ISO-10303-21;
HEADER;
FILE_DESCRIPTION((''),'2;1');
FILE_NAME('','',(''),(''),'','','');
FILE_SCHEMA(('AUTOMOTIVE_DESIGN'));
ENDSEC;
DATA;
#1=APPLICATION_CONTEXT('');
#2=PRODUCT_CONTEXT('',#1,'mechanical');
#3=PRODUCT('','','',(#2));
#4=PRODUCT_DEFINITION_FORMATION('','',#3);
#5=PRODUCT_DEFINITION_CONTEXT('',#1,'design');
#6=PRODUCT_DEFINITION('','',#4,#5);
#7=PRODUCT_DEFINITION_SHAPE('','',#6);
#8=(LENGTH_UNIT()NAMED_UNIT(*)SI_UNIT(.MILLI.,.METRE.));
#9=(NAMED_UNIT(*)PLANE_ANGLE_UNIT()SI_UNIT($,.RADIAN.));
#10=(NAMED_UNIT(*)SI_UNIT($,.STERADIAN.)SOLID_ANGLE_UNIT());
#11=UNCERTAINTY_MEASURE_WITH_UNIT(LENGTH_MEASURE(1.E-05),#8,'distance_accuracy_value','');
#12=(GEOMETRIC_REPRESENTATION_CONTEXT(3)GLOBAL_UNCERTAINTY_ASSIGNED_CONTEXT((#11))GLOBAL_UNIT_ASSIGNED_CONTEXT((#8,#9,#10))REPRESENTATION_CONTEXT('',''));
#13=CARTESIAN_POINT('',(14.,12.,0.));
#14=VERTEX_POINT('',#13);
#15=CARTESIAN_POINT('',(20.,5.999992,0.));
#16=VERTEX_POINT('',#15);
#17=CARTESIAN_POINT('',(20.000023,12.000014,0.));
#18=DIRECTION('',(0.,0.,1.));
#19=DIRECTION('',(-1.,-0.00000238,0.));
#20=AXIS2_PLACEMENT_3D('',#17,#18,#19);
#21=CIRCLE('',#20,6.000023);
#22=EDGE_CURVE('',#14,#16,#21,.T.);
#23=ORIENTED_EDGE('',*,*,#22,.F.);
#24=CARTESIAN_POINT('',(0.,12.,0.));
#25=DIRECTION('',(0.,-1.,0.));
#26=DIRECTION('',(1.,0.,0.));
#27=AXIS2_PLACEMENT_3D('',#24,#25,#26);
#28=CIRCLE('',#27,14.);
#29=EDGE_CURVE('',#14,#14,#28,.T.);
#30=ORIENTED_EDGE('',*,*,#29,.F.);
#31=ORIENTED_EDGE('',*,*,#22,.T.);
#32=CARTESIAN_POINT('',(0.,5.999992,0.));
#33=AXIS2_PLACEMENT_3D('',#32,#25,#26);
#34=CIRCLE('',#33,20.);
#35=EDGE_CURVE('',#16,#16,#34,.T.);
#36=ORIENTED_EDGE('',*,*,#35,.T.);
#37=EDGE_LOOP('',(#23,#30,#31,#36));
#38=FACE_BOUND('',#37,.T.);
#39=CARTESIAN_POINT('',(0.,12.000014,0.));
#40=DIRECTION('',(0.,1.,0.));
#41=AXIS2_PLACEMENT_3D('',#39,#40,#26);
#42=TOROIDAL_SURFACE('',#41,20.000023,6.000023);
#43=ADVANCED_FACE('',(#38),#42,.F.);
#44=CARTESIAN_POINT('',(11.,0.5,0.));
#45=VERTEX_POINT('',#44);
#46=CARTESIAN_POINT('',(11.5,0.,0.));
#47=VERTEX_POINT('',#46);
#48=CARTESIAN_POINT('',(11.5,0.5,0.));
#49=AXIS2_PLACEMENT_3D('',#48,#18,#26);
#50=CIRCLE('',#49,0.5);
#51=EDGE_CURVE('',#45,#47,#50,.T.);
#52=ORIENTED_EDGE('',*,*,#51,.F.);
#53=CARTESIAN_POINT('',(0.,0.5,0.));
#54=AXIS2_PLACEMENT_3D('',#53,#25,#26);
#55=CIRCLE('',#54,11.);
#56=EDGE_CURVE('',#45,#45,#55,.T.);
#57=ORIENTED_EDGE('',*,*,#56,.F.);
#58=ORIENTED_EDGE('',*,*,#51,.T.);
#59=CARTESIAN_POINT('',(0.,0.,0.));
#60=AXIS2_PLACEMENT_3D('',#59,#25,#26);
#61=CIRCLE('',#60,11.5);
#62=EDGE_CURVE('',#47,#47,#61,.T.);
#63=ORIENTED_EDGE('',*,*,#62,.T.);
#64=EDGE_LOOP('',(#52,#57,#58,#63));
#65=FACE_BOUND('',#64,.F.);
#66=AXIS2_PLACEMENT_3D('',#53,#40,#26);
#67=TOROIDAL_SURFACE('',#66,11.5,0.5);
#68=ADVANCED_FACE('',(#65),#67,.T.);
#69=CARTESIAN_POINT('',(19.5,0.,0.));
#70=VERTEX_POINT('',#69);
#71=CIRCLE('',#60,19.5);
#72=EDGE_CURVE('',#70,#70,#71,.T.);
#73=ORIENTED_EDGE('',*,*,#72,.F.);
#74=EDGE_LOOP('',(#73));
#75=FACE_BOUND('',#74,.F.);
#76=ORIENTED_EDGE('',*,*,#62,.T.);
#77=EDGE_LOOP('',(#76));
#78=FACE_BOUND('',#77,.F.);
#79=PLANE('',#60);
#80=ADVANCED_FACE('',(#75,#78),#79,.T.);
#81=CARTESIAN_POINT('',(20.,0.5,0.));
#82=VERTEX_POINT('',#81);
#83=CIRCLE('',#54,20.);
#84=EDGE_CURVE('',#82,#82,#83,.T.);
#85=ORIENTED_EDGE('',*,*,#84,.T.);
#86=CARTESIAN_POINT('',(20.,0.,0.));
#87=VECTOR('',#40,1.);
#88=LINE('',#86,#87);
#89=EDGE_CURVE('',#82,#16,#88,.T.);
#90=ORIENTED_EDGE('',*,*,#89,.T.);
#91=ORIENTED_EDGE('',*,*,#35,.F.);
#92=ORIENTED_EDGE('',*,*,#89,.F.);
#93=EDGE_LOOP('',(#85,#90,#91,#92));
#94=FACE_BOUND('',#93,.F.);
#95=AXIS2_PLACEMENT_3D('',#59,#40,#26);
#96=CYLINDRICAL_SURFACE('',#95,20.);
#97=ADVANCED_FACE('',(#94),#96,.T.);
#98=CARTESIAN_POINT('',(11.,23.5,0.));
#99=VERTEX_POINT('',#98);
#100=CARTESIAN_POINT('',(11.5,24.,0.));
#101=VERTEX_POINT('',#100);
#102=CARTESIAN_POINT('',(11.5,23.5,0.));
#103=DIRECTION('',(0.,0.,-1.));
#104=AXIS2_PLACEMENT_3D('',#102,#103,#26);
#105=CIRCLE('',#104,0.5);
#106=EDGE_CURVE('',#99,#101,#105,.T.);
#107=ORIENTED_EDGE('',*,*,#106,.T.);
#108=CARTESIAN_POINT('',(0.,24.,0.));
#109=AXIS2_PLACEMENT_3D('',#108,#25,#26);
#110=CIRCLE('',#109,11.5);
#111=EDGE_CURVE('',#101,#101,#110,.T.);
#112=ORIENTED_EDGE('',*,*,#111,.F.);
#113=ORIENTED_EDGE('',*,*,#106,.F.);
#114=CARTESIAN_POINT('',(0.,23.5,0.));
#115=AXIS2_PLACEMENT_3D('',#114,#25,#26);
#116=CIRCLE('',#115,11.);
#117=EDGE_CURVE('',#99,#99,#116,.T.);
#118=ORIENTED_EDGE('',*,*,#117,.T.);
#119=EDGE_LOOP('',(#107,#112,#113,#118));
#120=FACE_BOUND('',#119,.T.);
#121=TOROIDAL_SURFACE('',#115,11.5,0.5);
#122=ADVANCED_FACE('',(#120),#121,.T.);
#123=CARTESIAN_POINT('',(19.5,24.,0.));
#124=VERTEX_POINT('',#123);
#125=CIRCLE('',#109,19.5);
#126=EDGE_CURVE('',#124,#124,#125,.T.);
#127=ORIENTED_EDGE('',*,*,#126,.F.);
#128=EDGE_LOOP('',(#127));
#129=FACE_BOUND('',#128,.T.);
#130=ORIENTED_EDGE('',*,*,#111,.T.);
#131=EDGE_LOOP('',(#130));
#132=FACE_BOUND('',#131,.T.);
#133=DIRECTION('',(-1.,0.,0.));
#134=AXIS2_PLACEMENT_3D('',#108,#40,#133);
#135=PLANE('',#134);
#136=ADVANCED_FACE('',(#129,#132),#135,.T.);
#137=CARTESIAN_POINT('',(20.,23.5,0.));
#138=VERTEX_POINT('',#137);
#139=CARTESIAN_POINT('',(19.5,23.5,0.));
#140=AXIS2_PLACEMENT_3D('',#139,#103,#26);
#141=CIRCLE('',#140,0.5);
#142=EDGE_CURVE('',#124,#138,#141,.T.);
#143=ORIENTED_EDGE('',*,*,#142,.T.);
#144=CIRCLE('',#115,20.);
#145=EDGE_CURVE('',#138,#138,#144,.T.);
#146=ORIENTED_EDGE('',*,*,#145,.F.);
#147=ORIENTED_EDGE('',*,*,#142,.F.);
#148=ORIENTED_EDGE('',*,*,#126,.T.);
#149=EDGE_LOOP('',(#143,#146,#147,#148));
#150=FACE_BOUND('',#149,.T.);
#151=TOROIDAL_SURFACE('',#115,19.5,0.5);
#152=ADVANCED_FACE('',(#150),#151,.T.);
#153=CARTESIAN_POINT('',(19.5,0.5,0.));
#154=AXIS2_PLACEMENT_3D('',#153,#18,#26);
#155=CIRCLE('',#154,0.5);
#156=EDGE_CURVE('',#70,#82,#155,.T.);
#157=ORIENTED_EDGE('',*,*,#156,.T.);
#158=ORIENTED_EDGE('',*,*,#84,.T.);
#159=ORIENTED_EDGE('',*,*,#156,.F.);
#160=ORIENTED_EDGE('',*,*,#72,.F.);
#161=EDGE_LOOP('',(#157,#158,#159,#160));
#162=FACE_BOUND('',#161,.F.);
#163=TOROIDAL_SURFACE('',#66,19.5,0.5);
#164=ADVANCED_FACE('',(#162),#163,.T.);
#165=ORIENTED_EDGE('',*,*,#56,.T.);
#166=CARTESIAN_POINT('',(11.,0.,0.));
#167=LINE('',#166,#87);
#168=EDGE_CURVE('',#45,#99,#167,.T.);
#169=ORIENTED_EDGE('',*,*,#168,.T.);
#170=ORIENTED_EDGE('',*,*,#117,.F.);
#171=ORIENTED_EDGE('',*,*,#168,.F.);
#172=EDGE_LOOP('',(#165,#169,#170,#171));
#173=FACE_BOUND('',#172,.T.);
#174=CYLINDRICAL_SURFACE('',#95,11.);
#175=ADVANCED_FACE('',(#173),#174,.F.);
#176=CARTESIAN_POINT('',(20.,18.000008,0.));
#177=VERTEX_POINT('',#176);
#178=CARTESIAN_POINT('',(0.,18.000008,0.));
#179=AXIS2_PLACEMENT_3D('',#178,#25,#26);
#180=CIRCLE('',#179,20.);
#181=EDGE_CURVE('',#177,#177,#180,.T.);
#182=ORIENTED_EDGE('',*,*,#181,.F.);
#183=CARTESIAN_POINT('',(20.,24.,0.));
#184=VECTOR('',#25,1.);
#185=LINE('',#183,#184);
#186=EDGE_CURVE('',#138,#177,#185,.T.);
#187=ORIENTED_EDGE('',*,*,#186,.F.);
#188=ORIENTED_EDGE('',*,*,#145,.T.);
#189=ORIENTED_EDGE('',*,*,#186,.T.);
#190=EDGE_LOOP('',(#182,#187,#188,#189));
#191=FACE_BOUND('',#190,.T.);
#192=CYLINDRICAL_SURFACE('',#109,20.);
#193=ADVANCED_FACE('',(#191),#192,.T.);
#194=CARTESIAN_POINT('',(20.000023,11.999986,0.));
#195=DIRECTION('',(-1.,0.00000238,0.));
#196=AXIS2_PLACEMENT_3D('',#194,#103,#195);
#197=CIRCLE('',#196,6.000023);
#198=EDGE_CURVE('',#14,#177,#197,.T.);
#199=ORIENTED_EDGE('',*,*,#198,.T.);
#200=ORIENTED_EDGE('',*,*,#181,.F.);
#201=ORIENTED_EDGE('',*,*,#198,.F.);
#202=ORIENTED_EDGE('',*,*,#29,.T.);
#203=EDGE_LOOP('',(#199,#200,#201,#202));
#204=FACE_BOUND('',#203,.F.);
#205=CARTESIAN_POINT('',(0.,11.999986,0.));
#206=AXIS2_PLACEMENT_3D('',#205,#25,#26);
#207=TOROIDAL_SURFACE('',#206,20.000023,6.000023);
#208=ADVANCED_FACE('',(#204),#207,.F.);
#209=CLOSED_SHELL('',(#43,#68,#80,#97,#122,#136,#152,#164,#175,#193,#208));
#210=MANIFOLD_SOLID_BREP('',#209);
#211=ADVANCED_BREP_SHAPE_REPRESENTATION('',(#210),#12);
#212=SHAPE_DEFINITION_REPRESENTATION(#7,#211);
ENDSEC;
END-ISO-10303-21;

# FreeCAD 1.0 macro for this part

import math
import FreeCAD as App
import Part
import Sketcher

V = App.Vector
Q = App.Units.Quantity


def edges_at(feature, points):
    """Names of the edges that pass closest to the given points."""
    edges = feature.Shape.Edges
    near = lambda p: min(range(len(edges)), key=lambda i: edges[i].distToShape(Part.Vertex(*p))[0])
    return sorted({f"Edge{near(p) + 1}" for p in points})

doc = App.newDocument("Part")
body = doc.addObject("PartDesign::Body", "Body")

# Sketch on XY plane
sketch1 = body.newObject("Sketcher::SketchObject", "Sketch")
sketch1.AttachmentSupport = (doc.getObject("XY_Plane"), [""])
sketch1.MapMode = "FlatFace"
sketch1.addGeometry(Part.LineSegment(V(11, 12, 0), V(11, 0, 0)), False)
sketch1.addGeometry(Part.LineSegment(V(11, 0, 0), V(20, 0, 0)), False)
sketch1.addGeometry(Part.LineSegment(V(20, 0, 0), V(20, 5.999992, 0)), False)
sketch1.addGeometry(Part.ArcOfCircle(Part.Circle(V(20, 12, 0), V(0, 0, 1), 6), math.radians(180), math.radians(270)), False)
sketch1.addGeometry(Part.LineSegment(V(14, 12, 0), V(11, 12, 0)), False)
sketch1.addConstraint(Sketcher.Constraint("Coincident", 0, 2, 1, 1))
sketch1.addConstraint(Sketcher.Constraint("Coincident", 1, 2, 2, 1))
sketch1.addConstraint(Sketcher.Constraint("Coincident", 2, 2, 3, 2))
sketch1.addConstraint(Sketcher.Constraint("Coincident", 3, 1, 4, 1))
sketch1.addConstraint(Sketcher.Constraint("Coincident", 4, 2, 0, 1))
sketch1.addConstraint(Sketcher.Constraint("Vertical", 0))
sketch1.addConstraint(Sketcher.Constraint("Horizontal", 1))
sketch1.addConstraint(Sketcher.Constraint("Vertical", 2))
sketch1.addConstraint(Sketcher.Constraint("Horizontal", 4))
sketch1.addConstraint(Sketcher.Constraint("PointOnObject", 0, 2, -1))
sketch1.addConstraint(Sketcher.Constraint("Vertical", 3, 3, 1, 2))
sketch1.addConstraint(Sketcher.Constraint("Radius", 3, Q("6 mm")))
sketch1.addConstraint(Sketcher.Constraint("DistanceY", 0, 2, 0, 1, Q("12 mm")))
sketch1.addConstraint(Sketcher.Constraint("DistanceY", 2, 1, 2, 2, Q("6 mm")))
sketch1.addConstraint(Sketcher.Constraint("DistanceX", -1, 1, 3, 3, Q("20 mm")))
sketch1.addConstraint(Sketcher.Constraint("DistanceX", -1, 1, 0, 2, Q("11 mm")))
revolution = body.newObject("PartDesign::Revolution", "Revolution")
revolution.Profile = sketch1
revolution.ReferenceAxis = (sketch1, ["V_Axis"])
revolution.Angle = 360
doc.recompute()

datumplane = body.newObject("PartDesign::Plane", "DatumPlane")
datumplane.AttachmentSupport = (doc.getObject("XZ_Plane"), [""])
datumplane.MapMode = "FlatFace"
datumplane.AttachmentOffset = App.Placement(V(0, 0, -12), App.Rotation())
mirrored = body.newObject("PartDesign::Mirrored", "Mirrored")
mirrored.Originals = [revolution]
mirrored.MirrorPlane = (datumplane, [""])
body.Tip = mirrored
doc.recompute()

fillet = body.newObject("PartDesign::Fillet", "Fillet")
fillet.Base = (mirrored, edges_at(mirrored, [
    (-20, 0, 0),
    (-11, 0, 0),
    (-20, 24, 0),
    (-11, 24, 0),
]))
fillet.Radius = 0.5

doc.recompute()
